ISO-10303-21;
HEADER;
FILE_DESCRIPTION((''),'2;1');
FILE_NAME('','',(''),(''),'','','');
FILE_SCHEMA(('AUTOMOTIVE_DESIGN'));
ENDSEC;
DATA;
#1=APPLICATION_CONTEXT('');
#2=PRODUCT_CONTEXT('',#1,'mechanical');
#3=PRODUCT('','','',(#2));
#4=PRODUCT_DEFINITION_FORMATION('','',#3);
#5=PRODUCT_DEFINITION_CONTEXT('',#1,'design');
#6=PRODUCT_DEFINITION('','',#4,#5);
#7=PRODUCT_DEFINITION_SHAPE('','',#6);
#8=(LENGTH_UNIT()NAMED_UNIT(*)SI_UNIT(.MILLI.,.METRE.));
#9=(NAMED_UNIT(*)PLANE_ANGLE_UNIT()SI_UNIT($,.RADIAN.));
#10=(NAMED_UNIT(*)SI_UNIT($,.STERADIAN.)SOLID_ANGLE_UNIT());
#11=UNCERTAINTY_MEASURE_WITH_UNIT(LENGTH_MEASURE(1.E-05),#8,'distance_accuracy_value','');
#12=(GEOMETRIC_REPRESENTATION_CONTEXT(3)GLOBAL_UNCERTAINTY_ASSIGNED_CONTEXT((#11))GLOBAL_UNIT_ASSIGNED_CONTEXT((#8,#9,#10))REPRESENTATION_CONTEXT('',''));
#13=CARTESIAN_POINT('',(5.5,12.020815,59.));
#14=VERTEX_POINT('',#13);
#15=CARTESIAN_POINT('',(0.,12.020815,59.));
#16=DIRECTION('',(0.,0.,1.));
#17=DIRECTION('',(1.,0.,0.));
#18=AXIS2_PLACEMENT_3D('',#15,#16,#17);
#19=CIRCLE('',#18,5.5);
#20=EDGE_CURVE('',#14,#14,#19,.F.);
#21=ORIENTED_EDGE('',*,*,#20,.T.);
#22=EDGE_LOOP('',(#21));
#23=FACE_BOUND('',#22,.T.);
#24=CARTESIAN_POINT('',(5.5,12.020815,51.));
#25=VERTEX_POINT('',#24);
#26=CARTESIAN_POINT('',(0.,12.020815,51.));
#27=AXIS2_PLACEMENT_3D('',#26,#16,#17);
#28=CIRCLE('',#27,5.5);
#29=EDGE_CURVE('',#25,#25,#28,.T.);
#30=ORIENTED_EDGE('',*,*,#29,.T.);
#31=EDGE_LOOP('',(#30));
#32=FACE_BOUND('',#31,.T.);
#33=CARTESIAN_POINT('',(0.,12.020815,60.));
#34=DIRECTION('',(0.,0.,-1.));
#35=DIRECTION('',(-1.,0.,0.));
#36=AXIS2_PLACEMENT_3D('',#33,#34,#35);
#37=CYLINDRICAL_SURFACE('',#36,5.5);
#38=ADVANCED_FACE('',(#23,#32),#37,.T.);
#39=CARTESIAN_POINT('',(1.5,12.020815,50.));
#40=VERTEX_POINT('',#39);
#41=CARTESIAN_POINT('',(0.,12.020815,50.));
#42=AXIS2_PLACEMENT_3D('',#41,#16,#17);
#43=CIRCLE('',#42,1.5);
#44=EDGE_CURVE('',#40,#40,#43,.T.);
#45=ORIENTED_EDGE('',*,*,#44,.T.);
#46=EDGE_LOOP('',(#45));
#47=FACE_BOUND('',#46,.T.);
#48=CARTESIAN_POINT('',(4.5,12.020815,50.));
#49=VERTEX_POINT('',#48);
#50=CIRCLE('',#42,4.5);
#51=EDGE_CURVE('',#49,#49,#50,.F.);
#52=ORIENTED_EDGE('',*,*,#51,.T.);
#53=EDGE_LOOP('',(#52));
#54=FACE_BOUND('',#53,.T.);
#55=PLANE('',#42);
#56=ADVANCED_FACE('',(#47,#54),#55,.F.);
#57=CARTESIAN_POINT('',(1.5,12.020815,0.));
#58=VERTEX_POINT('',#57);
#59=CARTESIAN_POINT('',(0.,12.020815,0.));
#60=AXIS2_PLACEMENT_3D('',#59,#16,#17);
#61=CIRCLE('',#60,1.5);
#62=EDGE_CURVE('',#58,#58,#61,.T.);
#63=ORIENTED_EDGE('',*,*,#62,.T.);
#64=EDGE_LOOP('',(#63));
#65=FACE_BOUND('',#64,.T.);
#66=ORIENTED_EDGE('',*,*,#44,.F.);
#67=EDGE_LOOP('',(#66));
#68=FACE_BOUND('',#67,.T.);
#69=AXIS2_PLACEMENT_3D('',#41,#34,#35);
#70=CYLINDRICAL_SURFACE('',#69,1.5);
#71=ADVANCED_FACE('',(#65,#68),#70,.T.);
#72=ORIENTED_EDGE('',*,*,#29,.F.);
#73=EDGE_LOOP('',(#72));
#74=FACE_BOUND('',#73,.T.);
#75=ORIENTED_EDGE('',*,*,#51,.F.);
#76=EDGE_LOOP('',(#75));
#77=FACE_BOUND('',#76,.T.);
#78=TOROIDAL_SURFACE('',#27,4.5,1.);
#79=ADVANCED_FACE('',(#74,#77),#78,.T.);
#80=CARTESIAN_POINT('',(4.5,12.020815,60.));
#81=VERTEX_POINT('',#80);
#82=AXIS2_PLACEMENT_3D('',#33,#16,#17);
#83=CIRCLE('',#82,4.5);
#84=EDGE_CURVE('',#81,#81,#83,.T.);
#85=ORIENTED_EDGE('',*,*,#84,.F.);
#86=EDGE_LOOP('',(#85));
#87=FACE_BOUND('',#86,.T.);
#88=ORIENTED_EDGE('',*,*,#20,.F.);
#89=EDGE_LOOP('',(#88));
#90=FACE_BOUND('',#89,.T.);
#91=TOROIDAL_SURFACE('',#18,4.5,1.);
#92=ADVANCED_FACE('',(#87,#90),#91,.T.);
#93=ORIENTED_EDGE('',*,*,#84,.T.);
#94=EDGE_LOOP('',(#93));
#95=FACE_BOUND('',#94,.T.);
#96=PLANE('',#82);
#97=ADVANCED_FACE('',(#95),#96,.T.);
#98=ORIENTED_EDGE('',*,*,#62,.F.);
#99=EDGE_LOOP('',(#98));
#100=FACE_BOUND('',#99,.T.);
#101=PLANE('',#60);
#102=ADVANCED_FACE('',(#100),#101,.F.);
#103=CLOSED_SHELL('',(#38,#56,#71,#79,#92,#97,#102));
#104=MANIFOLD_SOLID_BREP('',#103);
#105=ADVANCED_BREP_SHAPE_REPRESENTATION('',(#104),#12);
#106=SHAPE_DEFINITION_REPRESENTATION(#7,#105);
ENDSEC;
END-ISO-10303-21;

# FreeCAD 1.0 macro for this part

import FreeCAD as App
import Part
import Sketcher
from FreeCAD import Vector


def edges_at(feature, points):
    """Names of the edges that pass closest to the given points."""
    edges = feature.Shape.Edges
    near = lambda p: min(range(len(edges)), key=lambda i: edges[i].distToShape(Part.Vertex(*p))[0])
    return sorted({f"Edge{near(p) + 1}" for p in points})

doc = App.newDocument("Part")
body = doc.addObject("PartDesign::Body", "Body")

# Sketch on XY plane
sketch1 = body.newObject("Sketcher::SketchObject", "Sketch")
sketch1.AttachmentSupport = (doc.getObject("XY_Plane"), [""])
sketch1.MapMode = "FlatFace"
sketch1.addGeometry(Part.Circle(Vector(0, 12, 0), Vector(0, 0, 1), 1.5), False)
sketch1.addConstraint(Sketcher.Constraint("PointOnObject", 0, 3, -2))
sketch1.addConstraint(Sketcher.Constraint("Diameter", 0, 3.0))
sketch1.addConstraint(Sketcher.Constraint("DistanceY", -1, 1, 0, 3, 12.020815))
pad1 = body.newObject("PartDesign::Pad", "Pad")
pad1.Profile = sketch1
pad1.Length = 50

# Sketch on XY plane
sketch2 = body.newObject("Sketcher::SketchObject", "Sketch001")
sketch2.AttachmentSupport = (doc.getObject("XY_Plane"), [""])
sketch2.MapMode = "FlatFace"
sketch2.AttachmentOffset = App.Placement(Vector(0, 0, 50), App.Rotation())
sketch2.addGeometry(Part.Circle(Vector(0, 12, 0), Vector(0, 0, 1), 6), False)
sketch2.addConstraint(Sketcher.Constraint("PointOnObject", 0, 3, -2))
sketch2.addConstraint(Sketcher.Constraint("Diameter", 0, 11.0))
sketch2.addConstraint(Sketcher.Constraint("DistanceY", -1, 1, 0, 3, 12.020815))
pad2 = body.newObject("PartDesign::Pad", "Pad001")
pad2.Profile = sketch2
pad2.Length = 10
doc.recompute()

fillet = body.newObject("PartDesign::Fillet", "Fillet")
fillet.Base = (pad2, edges_at(pad2, [(-5.5, 12.021, 50), (-5.5, 12.021, 60)]))
fillet.Radius = 1

doc.recompute()
